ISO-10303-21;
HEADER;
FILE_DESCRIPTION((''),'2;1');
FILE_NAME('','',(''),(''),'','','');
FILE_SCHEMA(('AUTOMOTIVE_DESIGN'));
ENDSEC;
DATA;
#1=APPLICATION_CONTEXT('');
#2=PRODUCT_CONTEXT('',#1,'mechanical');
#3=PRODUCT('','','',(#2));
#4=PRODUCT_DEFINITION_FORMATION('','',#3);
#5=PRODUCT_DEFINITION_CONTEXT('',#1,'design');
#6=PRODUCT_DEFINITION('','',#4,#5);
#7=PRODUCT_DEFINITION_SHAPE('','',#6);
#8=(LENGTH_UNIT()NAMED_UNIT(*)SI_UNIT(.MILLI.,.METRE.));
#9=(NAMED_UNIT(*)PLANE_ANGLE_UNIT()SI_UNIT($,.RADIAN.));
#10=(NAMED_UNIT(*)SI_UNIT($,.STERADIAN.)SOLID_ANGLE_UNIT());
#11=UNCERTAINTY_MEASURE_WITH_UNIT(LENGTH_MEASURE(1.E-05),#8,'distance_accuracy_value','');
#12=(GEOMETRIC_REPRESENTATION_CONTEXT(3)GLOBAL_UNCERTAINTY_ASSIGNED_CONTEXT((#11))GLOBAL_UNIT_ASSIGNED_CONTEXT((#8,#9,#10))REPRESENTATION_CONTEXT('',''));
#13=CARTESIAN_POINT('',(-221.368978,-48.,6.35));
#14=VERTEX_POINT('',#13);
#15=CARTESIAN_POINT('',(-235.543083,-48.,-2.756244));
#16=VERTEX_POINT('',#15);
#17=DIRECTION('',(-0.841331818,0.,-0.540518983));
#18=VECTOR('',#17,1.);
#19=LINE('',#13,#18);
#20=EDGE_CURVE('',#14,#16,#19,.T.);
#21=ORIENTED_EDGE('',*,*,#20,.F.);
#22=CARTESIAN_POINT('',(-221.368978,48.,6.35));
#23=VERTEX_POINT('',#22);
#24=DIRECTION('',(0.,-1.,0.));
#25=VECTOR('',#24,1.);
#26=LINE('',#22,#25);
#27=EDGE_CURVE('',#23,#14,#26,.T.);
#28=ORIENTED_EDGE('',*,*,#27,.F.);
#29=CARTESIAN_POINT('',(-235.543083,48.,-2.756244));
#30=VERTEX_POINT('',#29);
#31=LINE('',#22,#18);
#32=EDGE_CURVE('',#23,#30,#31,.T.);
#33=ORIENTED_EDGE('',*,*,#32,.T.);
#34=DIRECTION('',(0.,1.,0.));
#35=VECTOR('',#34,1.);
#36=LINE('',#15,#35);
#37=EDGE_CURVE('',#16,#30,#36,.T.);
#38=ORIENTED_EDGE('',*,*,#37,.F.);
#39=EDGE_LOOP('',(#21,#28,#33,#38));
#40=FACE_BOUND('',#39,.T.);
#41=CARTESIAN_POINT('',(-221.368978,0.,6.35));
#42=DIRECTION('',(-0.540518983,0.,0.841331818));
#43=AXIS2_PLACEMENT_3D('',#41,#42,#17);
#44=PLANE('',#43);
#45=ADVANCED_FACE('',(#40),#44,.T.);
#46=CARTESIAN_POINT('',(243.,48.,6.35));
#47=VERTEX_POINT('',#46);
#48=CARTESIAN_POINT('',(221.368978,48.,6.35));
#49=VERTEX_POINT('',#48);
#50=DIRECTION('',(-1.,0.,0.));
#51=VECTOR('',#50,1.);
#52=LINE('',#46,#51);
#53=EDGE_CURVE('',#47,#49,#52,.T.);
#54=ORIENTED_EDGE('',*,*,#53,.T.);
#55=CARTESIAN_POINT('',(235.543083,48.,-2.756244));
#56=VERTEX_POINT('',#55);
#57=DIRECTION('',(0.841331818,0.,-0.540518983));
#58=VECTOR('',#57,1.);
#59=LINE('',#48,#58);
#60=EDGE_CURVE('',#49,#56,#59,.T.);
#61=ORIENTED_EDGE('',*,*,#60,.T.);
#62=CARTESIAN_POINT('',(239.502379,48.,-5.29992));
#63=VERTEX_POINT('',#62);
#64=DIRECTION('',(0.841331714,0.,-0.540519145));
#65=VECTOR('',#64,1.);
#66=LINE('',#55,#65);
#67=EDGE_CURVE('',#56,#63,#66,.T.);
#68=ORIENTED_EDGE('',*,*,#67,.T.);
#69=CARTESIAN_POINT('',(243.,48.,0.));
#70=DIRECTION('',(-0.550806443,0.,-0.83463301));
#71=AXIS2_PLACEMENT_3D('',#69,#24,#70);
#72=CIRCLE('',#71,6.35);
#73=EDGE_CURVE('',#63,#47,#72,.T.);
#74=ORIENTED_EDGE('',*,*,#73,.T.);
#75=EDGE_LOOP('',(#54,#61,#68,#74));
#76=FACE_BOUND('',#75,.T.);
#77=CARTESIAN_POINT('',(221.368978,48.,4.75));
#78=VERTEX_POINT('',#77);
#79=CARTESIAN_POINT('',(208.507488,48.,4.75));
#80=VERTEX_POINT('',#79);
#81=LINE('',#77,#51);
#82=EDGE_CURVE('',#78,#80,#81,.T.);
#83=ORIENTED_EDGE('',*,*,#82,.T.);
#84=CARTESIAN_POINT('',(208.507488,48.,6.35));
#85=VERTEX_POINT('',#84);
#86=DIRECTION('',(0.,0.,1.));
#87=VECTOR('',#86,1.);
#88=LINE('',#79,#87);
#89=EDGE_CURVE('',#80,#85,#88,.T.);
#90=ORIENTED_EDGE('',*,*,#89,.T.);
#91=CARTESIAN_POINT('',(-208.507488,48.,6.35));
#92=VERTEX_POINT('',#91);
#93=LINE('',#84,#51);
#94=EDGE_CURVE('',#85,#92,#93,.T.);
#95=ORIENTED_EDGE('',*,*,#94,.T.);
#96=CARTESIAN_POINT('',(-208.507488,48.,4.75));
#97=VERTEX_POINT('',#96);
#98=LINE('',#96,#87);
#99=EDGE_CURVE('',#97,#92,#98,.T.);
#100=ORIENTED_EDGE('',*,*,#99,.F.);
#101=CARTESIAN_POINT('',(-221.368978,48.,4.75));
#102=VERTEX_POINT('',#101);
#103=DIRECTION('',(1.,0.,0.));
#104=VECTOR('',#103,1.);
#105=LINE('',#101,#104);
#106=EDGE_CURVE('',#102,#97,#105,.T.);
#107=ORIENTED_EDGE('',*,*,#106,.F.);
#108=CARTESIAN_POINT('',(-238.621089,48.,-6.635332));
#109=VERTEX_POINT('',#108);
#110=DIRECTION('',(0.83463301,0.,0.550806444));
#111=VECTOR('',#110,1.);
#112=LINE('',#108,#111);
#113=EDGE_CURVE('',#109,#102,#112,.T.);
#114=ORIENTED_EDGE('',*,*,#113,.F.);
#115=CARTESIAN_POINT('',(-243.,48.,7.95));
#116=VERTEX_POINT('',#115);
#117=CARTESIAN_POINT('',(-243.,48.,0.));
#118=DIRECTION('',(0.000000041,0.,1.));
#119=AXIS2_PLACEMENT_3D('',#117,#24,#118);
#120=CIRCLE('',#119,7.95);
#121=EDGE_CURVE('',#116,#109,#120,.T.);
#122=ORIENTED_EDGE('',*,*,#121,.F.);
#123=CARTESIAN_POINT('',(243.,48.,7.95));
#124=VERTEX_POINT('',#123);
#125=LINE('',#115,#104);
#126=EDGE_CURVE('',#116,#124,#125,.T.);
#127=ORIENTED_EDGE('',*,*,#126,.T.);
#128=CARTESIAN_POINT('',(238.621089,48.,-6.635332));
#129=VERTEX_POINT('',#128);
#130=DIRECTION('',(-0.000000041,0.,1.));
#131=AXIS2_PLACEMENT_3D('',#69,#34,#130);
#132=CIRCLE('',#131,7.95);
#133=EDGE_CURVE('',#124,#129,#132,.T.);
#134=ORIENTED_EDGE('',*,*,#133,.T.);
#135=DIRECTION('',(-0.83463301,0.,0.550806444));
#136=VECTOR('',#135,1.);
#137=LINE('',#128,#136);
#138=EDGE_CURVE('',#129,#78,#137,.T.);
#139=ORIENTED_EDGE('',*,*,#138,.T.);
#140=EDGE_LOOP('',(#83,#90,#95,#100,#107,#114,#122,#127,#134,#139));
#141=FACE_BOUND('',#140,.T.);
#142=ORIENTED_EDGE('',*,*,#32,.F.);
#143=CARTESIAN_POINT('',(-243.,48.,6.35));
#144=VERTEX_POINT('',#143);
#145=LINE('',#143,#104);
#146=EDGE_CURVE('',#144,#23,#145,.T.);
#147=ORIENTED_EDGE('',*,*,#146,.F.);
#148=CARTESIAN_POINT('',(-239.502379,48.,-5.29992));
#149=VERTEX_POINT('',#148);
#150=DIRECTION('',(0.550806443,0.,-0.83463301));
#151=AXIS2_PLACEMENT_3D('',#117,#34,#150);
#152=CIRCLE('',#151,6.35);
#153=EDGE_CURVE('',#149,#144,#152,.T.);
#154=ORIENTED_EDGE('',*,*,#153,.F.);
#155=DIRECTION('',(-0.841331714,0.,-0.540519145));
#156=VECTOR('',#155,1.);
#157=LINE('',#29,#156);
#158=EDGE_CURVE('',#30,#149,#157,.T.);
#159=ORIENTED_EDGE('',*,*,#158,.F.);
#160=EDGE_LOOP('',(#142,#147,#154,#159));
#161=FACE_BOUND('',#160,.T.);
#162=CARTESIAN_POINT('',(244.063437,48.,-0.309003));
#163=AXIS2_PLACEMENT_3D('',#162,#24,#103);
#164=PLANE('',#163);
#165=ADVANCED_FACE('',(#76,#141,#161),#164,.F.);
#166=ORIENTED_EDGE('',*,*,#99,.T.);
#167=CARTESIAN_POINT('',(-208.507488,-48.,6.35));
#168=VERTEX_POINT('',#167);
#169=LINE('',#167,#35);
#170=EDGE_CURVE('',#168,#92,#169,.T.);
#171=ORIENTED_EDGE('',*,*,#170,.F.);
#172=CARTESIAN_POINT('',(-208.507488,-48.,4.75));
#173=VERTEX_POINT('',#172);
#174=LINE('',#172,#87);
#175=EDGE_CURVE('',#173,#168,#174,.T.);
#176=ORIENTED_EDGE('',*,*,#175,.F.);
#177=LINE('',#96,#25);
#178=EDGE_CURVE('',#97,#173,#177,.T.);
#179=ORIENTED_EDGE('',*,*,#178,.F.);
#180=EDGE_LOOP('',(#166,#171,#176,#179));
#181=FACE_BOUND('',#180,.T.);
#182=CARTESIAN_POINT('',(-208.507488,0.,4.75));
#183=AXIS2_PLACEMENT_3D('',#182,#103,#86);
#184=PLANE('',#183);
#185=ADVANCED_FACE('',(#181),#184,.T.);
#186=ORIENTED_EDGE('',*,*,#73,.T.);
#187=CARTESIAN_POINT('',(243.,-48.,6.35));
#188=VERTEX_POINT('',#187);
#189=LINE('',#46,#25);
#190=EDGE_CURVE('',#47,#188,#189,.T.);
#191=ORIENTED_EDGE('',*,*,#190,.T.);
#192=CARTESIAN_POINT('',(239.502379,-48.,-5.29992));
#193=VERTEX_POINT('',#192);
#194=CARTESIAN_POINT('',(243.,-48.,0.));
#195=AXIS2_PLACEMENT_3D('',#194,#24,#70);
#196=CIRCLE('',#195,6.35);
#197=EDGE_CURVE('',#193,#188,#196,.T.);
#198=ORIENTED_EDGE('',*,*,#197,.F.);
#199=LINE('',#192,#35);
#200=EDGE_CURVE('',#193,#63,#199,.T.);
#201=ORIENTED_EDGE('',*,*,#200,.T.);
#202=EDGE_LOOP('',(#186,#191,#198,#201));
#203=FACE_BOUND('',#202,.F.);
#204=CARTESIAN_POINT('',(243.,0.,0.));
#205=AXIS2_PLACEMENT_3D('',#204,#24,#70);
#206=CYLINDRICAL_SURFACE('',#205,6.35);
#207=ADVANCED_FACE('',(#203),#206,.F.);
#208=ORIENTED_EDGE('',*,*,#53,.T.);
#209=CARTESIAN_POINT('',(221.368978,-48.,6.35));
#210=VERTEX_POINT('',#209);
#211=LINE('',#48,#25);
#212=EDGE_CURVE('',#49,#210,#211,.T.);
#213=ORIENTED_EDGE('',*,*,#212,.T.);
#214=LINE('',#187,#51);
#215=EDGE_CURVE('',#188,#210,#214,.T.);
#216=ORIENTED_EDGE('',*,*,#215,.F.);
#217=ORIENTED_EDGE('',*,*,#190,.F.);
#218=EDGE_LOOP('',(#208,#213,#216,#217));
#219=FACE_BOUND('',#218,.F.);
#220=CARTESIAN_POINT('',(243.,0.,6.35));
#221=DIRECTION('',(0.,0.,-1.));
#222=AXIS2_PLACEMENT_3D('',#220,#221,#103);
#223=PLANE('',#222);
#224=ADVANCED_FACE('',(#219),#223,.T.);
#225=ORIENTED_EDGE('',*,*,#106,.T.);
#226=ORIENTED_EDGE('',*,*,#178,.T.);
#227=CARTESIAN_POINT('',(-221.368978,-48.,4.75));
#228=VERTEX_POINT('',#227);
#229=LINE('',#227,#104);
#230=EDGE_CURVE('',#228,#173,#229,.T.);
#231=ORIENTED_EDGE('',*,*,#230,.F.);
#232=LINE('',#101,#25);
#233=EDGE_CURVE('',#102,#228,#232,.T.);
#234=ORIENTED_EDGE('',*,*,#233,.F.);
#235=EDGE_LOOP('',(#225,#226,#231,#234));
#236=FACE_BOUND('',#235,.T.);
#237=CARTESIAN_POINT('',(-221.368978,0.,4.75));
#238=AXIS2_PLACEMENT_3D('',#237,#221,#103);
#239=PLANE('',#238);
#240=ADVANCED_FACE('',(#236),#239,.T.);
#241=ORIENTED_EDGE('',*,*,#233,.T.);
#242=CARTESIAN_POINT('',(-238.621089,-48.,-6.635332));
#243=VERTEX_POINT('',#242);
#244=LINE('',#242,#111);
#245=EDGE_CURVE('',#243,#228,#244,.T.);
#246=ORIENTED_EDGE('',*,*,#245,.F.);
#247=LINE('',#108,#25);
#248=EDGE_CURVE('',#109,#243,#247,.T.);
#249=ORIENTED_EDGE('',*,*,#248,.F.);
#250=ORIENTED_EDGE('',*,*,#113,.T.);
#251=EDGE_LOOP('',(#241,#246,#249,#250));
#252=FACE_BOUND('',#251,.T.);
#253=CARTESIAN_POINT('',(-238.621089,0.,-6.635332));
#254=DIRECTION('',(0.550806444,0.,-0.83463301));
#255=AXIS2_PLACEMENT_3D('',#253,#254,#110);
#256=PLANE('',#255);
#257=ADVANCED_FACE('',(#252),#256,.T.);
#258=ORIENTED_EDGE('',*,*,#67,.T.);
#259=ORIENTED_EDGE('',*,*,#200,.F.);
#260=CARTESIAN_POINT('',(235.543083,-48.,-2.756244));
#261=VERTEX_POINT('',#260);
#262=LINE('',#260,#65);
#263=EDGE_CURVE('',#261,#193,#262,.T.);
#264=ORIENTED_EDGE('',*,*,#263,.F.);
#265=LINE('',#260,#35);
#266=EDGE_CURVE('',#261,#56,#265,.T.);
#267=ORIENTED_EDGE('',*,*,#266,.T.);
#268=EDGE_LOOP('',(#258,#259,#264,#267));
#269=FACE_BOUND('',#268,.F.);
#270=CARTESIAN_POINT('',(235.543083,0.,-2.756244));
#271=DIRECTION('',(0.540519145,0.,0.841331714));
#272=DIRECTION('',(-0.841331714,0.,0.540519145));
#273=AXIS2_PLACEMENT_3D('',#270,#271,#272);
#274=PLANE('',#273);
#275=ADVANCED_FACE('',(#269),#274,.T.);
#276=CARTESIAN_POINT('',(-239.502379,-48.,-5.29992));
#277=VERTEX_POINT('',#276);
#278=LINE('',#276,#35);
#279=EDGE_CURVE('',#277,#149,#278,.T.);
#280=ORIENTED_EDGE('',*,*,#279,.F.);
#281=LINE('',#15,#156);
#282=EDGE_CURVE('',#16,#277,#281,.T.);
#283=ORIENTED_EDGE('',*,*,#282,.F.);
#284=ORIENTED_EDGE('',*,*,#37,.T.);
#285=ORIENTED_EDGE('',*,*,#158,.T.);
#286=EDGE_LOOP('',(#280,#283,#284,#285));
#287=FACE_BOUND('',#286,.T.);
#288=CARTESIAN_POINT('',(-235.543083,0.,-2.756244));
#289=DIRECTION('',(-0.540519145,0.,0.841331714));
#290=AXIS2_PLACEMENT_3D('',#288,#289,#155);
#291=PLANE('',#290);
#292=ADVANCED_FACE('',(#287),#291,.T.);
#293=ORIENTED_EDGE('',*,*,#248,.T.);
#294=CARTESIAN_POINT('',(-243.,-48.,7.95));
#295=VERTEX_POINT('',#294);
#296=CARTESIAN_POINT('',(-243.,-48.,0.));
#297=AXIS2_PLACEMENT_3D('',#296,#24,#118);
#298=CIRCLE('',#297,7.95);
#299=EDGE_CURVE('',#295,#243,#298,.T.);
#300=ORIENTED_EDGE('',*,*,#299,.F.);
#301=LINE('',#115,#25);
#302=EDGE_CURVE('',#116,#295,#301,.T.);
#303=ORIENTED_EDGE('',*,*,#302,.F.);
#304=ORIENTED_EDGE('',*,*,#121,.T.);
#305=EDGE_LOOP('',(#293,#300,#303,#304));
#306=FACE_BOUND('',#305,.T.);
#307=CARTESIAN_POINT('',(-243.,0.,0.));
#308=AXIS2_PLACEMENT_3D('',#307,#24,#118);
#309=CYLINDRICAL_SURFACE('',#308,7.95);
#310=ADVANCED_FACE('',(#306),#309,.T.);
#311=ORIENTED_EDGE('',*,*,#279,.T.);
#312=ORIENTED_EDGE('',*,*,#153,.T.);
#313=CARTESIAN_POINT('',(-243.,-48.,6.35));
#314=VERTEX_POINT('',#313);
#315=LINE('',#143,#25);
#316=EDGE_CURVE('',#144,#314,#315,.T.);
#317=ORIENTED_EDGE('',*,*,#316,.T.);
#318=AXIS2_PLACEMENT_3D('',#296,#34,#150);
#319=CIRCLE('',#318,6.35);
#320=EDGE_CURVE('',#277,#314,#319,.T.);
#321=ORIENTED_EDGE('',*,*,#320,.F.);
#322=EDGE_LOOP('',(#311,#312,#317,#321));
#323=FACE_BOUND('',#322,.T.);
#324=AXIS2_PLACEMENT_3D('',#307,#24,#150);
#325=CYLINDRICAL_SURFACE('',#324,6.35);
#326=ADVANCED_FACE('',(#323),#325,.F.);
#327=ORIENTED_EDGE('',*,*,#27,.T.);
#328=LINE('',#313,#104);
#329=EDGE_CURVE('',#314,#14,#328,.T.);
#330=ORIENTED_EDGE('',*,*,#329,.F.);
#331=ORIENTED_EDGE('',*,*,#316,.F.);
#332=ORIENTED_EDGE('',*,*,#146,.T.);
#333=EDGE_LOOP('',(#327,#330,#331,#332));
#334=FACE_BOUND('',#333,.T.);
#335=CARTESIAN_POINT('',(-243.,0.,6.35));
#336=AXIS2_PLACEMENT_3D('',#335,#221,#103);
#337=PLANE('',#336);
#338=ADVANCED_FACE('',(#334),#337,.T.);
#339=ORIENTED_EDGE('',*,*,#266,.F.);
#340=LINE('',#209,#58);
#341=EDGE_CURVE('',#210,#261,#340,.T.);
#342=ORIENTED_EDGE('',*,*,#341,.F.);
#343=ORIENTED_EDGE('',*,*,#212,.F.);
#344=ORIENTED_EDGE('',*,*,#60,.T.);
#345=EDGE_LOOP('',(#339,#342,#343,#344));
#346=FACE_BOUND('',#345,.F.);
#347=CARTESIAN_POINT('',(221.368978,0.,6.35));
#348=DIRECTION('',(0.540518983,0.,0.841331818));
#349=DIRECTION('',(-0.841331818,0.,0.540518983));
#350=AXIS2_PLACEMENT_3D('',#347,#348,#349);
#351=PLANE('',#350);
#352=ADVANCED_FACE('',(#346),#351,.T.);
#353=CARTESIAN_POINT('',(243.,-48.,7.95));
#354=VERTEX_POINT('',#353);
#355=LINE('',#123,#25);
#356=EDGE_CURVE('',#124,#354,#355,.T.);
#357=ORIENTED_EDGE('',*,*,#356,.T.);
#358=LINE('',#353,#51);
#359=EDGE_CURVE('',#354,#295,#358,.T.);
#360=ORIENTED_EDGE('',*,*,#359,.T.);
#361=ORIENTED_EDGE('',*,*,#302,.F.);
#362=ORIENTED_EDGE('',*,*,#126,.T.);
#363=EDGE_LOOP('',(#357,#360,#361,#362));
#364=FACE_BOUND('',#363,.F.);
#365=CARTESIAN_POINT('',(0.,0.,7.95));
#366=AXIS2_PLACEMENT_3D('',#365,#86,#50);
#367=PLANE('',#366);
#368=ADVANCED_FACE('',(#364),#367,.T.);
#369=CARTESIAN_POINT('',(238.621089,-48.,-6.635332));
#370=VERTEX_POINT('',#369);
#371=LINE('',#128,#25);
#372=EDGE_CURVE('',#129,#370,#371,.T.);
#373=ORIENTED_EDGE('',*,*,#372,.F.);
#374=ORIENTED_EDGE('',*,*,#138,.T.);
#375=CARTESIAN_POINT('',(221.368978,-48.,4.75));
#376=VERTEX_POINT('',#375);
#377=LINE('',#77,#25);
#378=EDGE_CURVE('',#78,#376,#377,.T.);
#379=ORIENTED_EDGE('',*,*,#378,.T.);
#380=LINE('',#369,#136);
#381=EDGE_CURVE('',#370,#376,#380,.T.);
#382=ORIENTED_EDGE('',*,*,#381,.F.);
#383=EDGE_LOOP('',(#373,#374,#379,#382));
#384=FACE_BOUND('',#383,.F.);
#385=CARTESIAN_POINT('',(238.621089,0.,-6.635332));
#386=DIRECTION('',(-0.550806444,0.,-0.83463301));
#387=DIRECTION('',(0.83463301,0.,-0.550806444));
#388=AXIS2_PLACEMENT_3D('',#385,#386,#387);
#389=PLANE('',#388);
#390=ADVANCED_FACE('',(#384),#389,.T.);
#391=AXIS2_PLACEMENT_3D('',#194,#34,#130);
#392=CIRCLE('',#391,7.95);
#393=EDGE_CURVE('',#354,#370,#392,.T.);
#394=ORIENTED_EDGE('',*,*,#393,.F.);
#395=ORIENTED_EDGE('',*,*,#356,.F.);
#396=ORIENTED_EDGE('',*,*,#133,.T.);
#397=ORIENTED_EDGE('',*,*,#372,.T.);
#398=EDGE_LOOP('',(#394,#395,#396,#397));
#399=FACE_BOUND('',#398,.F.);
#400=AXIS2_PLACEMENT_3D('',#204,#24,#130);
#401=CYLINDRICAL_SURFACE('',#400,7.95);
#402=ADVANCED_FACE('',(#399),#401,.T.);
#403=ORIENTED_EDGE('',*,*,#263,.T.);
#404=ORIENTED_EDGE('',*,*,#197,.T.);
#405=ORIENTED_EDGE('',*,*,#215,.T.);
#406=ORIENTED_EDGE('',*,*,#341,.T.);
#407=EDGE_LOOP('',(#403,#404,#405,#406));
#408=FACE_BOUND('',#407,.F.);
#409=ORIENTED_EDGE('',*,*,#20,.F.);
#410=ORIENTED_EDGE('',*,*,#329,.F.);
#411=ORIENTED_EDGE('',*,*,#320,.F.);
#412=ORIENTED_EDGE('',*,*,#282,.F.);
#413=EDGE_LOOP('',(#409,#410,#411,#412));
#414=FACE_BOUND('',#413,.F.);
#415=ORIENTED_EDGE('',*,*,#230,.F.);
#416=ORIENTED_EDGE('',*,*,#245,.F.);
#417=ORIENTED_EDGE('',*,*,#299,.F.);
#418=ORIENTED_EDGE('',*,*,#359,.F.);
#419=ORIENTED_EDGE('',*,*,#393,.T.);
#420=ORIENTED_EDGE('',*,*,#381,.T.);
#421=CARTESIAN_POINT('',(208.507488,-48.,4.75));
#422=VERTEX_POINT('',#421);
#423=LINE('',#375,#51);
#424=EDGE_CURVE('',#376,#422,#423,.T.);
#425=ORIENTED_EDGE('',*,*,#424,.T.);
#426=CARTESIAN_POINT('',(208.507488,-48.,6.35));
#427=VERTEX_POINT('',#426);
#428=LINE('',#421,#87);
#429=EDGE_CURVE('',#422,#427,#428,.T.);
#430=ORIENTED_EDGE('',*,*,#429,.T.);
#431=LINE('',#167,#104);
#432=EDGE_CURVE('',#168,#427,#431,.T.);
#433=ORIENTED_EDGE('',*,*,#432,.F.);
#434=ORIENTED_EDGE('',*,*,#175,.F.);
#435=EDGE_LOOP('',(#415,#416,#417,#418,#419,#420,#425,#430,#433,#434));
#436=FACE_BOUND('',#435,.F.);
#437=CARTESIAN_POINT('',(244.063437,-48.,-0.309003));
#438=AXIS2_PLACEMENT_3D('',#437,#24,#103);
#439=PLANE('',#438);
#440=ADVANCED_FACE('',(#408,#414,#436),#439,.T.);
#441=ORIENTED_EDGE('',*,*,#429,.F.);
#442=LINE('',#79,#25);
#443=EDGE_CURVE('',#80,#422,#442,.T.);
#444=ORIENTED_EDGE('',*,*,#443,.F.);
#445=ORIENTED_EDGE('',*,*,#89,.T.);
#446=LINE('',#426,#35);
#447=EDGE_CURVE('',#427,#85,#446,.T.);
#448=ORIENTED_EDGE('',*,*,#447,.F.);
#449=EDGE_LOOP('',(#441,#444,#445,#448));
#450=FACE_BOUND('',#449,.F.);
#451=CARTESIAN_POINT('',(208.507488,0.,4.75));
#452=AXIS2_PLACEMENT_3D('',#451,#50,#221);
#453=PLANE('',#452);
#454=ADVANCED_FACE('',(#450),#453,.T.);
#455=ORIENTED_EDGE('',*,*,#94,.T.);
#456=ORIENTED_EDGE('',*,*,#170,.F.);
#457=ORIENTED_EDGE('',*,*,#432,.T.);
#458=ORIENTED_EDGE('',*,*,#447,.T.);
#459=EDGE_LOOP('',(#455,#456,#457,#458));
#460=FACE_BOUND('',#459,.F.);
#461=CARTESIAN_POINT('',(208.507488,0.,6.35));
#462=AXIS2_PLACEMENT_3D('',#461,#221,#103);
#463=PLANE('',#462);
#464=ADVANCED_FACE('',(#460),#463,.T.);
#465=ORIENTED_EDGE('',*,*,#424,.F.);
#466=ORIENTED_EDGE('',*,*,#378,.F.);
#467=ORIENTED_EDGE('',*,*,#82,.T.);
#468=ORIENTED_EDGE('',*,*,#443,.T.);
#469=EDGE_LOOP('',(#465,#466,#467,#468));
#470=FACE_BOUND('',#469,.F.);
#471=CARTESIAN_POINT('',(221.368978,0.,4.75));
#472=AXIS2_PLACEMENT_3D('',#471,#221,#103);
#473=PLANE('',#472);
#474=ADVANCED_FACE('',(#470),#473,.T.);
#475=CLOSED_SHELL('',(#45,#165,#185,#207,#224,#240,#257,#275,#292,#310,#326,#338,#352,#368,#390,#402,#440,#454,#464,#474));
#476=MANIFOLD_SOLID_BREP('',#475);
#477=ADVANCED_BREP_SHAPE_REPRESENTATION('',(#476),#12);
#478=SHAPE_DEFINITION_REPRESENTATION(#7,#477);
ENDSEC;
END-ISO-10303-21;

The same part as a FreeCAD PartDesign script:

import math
import FreeCAD as App
import Part
import Sketcher
from FreeCAD import Vector

doc = App.newDocument("Part")
body = doc.addObject("PartDesign::Body", "Body")

sketch1 = body.newObject("Sketcher::SketchObject", "Sketch")
sketch1.AttachmentSupport = (doc.getObject("XZ_Plane"), [""])
sketch1.MapMode = "FlatFace"
sketch1.addGeometry(Part.LineSegment(Vector(-208.5, 6.3, 0), Vector(0, 6.3, 0)), False)
sketch1.addGeometry(Part.LineSegment(Vector(0, 6.3, 0), Vector(0, 8, 0)), False)
sketch1.addGeometry(Part.LineSegment(Vector(0, 8, 0), Vector(-243, 8, 0)), False)
sketch1.addGeometry(Part.ArcOfCircle(Part.Circle(Vector(-243, 0, 0), Vector(0, 0, 1), 7.9), math.radians(90), math.radians(303)), False)
sketch1.addGeometry(Part.LineSegment(Vector(-238.6, -6.6, 0), Vector(-221.4, 4.8, 0)), False)
sketch1.addGeometry(Part.LineSegment(Vector(-221.4, 4.8, 0), Vector(-208.5, 4.8, 0)), False)
sketch1.addGeometry(Part.LineSegment(Vector(-208.5, 4.8, 0), Vector(-208.5, 6.3, 0)), False)
sketch1.addGeometry(Part.ArcOfCircle(Part.Circle(Vector(-243, 0, 0), Vector(0, 0, 1), 6.4), math.radians(90), math.radians(303)), False)
sketch1.addGeometry(Part.LineSegment(Vector(-243, 6.3, 0), Vector(-221.4, 6.3, 0)), False)
sketch1.addGeometry(Part.LineSegment(Vector(-221.4, 6.3, 0), Vector(-235.5, -2.8, 0)), False)
sketch1.addGeometry(Part.LineSegment(Vector(-235.5, -2.8, 0), Vector(-239.5, -5.3, 0)), False)
sketch1.addConstraint(Sketcher.Constraint("Coincident", 0, 2, 1, 1))
sketch1.addConstraint(Sketcher.Constraint("Coincident", 1, 2, 2, 1))
sketch1.addConstraint(Sketcher.Constraint("Tangent", 2, 2, 3, 1))
sketch1.addConstraint(Sketcher.Constraint("Tangent", 3, 2, 4, 1))
sketch1.addConstraint(Sketcher.Constraint("Coincident", 4, 2, 5, 1))
sketch1.addConstraint(Sketcher.Constraint("Coincident", 5, 2, 6, 1))
sketch1.addConstraint(Sketcher.Constraint("Coincident", 6, 2, 0, 1))
sketch1.addConstraint(Sketcher.Constraint("Tangent", 7, 1, 8, 1))
sketch1.addConstraint(Sketcher.Constraint("Coincident", 8, 2, 9, 1))
sketch1.addConstraint(Sketcher.Constraint("Coincident", 9, 2, 10, 1))
sketch1.addConstraint(Sketcher.Constraint("Coincident", 10, 2, 7, 2))
sketch1.addConstraint(Sketcher.Constraint("Horizontal", 0))
sketch1.addConstraint(Sketcher.Constraint("Vertical", 1))
sketch1.addConstraint(Sketcher.Constraint("Horizontal", 2))
sketch1.addConstraint(Sketcher.Constraint("Horizontal", 5))
sketch1.addConstraint(Sketcher.Constraint("Vertical", 6))
sketch1.addConstraint(Sketcher.Constraint("Horizontal", 8))
sketch1.addConstraint(Sketcher.Constraint("Coincident", 7, 3, 3, 3))
sketch1.addConstraint(Sketcher.Constraint("PointOnObject", 3, 3, -1))
sketch1.addConstraint(Sketcher.Constraint("PointOnObject", 0, 2, -2))
sketch1.addConstraint(Sketcher.Constraint("Parallel", 9, 10))
sketch1.addConstraint(Sketcher.Constraint("Horizontal", 6, 2, 7, 1))
sketch1.addConstraint(Sketcher.Constraint("Vertical", 4, 2, 8, 2))
sketch1.addConstraint(Sketcher.Constraint("Equal", 1, 6))
sketch1.addConstraint(Sketcher.Constraint("DistanceX", 2, 2, 2, 1, 243.0))
sketch1.addConstraint(Sketcher.Constraint("Radius", 3, 7.95))
sketch1.addConstraint(Sketcher.Constraint("Radius", 7, 6.35))
sketch1.addConstraint(Sketcher.Constraint("DistanceX", 0, 1, 0, 2, 208.507488))
sketch1.addConstraint(Sketcher.Constraint("DistanceX", 5, 1, 5, 2, 12.86149))
sketch1.addConstraint(Sketcher.Constraint("DistanceX", 10, 2, -1, 1, 239.502379))
sketch1.addConstraint(Sketcher.Constraint("Distance", 9, 16.847223))
pad1 = body.newObject("PartDesign::Pad", "Pad")
pad1.Profile = sketch1
pad1.Type = "TwoLengths"
pad1.Length = 48
pad1.Length2 = 48
body2 = doc.addObject("PartDesign::Body", "Body001")
doc.recompute()

body2.BaseFeature = body
doc.recompute()

mirroring = doc.addObject("Part::Mirroring", "Mirroring")
mirroring.Source = body
mirroring.Base = Vector(0, 0, 0)
mirroring.Normal = Vector(1, 0, 0)
body3 = doc.addObject("PartDesign::Body", "Body002")
body3.BaseFeature = mirroring
boolean = body2.newObject("PartDesign::Boolean", "Boolean")
boolean.Type = "Fuse"
boolean.addObjects([body3])
doc.recompute()
mirroring.Visibility = False

doc.recompute()
